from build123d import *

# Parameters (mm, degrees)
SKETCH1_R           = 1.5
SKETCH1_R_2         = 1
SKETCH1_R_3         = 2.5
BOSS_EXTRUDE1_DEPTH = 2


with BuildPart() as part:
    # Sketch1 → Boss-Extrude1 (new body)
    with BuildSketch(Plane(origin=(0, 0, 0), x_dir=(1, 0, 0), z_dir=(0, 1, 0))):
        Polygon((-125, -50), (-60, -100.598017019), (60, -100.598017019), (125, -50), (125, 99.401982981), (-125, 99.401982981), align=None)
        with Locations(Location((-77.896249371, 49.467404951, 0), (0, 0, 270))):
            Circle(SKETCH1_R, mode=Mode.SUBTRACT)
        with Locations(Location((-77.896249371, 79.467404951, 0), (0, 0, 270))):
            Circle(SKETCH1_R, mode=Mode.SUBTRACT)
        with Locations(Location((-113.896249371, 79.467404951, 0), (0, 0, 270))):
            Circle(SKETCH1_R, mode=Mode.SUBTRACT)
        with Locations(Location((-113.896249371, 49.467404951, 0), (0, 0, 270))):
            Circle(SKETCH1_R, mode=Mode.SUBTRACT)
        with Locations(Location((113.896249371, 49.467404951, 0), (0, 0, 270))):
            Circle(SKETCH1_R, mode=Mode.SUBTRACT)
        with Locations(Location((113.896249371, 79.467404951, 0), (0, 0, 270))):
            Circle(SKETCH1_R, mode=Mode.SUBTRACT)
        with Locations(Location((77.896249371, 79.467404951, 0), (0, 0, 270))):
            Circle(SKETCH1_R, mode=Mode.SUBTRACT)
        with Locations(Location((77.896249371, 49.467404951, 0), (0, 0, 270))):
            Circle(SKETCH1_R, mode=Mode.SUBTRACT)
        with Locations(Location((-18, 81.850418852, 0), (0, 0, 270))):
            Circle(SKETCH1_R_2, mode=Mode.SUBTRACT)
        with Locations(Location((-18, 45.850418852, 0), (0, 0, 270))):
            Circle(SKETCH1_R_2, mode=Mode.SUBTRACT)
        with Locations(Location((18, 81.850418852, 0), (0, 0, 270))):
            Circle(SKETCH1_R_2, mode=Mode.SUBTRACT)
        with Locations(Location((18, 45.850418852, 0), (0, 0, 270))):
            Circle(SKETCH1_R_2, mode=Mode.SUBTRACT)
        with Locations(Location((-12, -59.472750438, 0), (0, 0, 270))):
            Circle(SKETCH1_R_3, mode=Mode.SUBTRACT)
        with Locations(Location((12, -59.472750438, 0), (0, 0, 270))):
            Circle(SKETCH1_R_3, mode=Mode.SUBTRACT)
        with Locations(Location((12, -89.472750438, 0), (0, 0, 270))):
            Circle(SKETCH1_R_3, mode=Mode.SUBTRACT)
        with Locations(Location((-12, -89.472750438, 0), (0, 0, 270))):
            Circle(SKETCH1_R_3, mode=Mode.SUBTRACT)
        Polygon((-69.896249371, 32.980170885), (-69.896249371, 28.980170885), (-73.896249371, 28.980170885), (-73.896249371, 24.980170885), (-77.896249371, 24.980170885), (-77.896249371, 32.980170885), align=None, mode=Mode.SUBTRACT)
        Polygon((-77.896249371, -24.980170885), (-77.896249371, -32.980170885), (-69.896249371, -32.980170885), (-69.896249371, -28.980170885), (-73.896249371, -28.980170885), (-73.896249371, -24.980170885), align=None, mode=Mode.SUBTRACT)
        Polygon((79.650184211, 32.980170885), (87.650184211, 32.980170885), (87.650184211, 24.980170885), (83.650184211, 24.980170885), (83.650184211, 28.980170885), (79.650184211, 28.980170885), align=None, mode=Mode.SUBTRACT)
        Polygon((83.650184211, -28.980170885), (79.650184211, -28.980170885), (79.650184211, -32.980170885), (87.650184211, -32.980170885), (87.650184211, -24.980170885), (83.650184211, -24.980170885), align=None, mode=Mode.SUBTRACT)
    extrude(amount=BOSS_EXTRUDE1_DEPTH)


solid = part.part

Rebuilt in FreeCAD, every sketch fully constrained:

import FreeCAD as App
import Part
import Sketcher
from FreeCAD import Vector
Q = App.Units.Quantity

doc = App.newDocument("Part")
params = doc.addObject("Spreadsheet::Sheet", "Params")
for row, (alias, value) in enumerate([
    ("sketch1_diameter", "5 mm"),
    ("sketch1_diameter2", "3 mm"),
    ("sketch1_diameter3", "2 mm"),
    ("sketch1_width", "120 mm"),
    ("sketch1_width2", "250 mm"),
    ("pad1_length", "2 mm"),
], start=1):
    params.set(f"A{row}", alias)
    params.set(f"B{row}", "=" + value)
    params.setAlias(f"B{row}", alias)

body = doc.addObject("PartDesign::Body", "Body")

# Sketch on XZ plane
sketch1 = doc.addObject("Sketcher::SketchObject", "Sketch")
body.addObject(sketch1)
sketch1.AttachmentSupport = (doc.XZ_Plane, [""])
sketch1.MapMode = "FlatFace"
sketch1.addGeometry([
    Part.LineSegment(Vector(-125, 50, 0), Vector(-60, 100.598017, 0)),  # 0
    Part.LineSegment(Vector(-60, 100.598017, 0), Vector(60, 100.598017, 0)),  # 1
    Part.LineSegment(Vector(60, 100.598017, 0), Vector(125, 50, 0)),  # 2
    Part.LineSegment(Vector(125, 50, 0), Vector(125, -99.401983, 0)),  # 3
    Part.LineSegment(Vector(125, -99.401983, 0), Vector(-125, -99.401983, 0)),  # 4
    Part.LineSegment(Vector(-125, -99.401983, 0), Vector(-125, 50, 0)),  # 5
    Part.Circle(Vector(-12, 89.47275, 0), Vector(0, 0, 1), 2.5),  # 6
    Part.Circle(Vector(-12, 59.47275, 0), Vector(0, 0, 1), 2.5),  # 7
    Part.LineSegment(Vector(-77.896249, 32.980171, 0), Vector(-77.896249, 24.980171, 0)),  # 8
    Part.LineSegment(Vector(-77.896249, 24.980171, 0), Vector(-73.896249, 24.980171, 0)),  # 9
    Part.LineSegment(Vector(-73.896249, 24.980171, 0), Vector(-73.896249, 28.980171, 0)),  # 10
    Part.LineSegment(Vector(-73.896249, 28.980171, 0), Vector(-69.896249, 28.980171, 0)),  # 11
    Part.LineSegment(Vector(-69.896249, 28.980171, 0), Vector(-69.896249, 32.980171, 0)),  # 12
    Part.LineSegment(Vector(-69.896249, 32.980171, 0), Vector(-77.896249, 32.980171, 0)),  # 13
    Part.Circle(Vector(12, 89.47275, 0), Vector(0, 0, 1), 2.5),  # 14
    Part.Circle(Vector(12, 59.47275, 0), Vector(0, 0, 1), 2.5),  # 15
    Part.LineSegment(Vector(79.650184, 28.980171, 0), Vector(83.650184, 28.980171, 0)),  # 16
    Part.LineSegment(Vector(83.650184, 28.980171, 0), Vector(83.650184, 24.980171, 0)),  # 17
    Part.LineSegment(Vector(83.650184, 24.980171, 0), Vector(87.650184, 24.980171, 0)),  # 18
    Part.LineSegment(Vector(87.650184, 24.980171, 0), Vector(87.650184, 32.980171, 0)),  # 19
    Part.LineSegment(Vector(87.650184, 32.980171, 0), Vector(79.650184, 32.980171, 0)),  # 20
    Part.LineSegment(Vector(79.650184, 32.980171, 0), Vector(79.650184, 28.980171, 0)),  # 21
    Part.LineSegment(Vector(-77.896249, -32.980171, 0), Vector(-69.896249, -32.980171, 0)),  # 22
    Part.LineSegment(Vector(-69.896249, -32.980171, 0), Vector(-69.896249, -28.980171, 0)),  # 23
    Part.LineSegment(Vector(-69.896249, -28.980171, 0), Vector(-73.896249, -28.980171, 0)),  # 24
    Part.LineSegment(Vector(-73.896249, -28.980171, 0), Vector(-73.896249, -24.980171, 0)),  # 25
    Part.LineSegment(Vector(-73.896249, -24.980171, 0), Vector(-77.896249, -24.980171, 0)),  # 26
    Part.LineSegment(Vector(-77.896249, -24.980171, 0), Vector(-77.896249, -32.980171, 0)),  # 27
    Part.Circle(Vector(-113.896249, -49.467405, 0), Vector(0, 0, 1), 1.5),  # 28
    Part.Circle(Vector(-77.896249, -49.467405, 0), Vector(0, 0, 1), 1.5),  # 29
    Part.Circle(Vector(-113.896249, -79.467405, 0), Vector(0, 0, 1), 1.5),  # 30
    Part.Circle(Vector(-77.896249, -79.467405, 0), Vector(0, 0, 1), 1.5),  # 31
    Part.Circle(Vector(-18, -45.850419, 0), Vector(0, 0, 1), 1),  # 32
    Part.Circle(Vector(-18, -81.850419, 0), Vector(0, 0, 1), 1),  # 33
    Part.LineSegment(Vector(79.650184, -28.980171, 0), Vector(79.650184, -32.980171, 0)),  # 34
    Part.LineSegment(Vector(79.650184, -32.980171, 0), Vector(87.650184, -32.980171, 0)),  # 35
    Part.LineSegment(Vector(87.650184, -32.980171, 0), Vector(87.650184, -24.980171, 0)),  # 36
    Part.LineSegment(Vector(87.650184, -24.980171, 0), Vector(83.650184, -24.980171, 0)),  # 37
    Part.LineSegment(Vector(83.650184, -24.980171, 0), Vector(83.650184, -28.980171, 0)),  # 38
    Part.LineSegment(Vector(83.650184, -28.980171, 0), Vector(79.650184, -28.980171, 0)),  # 39
    Part.Circle(Vector(18, -45.850419, 0), Vector(0, 0, 1), 1),  # 40
    Part.Circle(Vector(18, -81.850419, 0), Vector(0, 0, 1), 1),  # 41
    Part.Circle(Vector(77.896249, -49.467405, 0), Vector(0, 0, 1), 1.5),  # 42
    Part.Circle(Vector(113.896249, -49.467405, 0), Vector(0, 0, 1), 1.5),  # 43
    Part.Circle(Vector(77.896249, -79.467405, 0), Vector(0, 0, 1), 1.5),  # 44
    Part.Circle(Vector(113.896249, -79.467405, 0), Vector(0, 0, 1), 1.5),  # 45
], False)
sketch1.addConstraint([
    Sketcher.Constraint("Coincident", 0, 2, 1, 1),
    Sketcher.Constraint("Coincident", 1, 2, 2, 1),
    Sketcher.Constraint("Coincident", 2, 2, 3, 1),
    Sketcher.Constraint("Coincident", 3, 2, 4, 1),
    Sketcher.Constraint("Coincident", 4, 2, 5, 1),
    Sketcher.Constraint("Coincident", 5, 2, 0, 1),
    Sketcher.Constraint("Coincident", 8, 2, 9, 1),
    Sketcher.Constraint("Coincident", 9, 2, 10, 1),
    Sketcher.Constraint("Coincident", 10, 2, 11, 1),
    Sketcher.Constraint("Coincident", 11, 2, 12, 1),
    Sketcher.Constraint("Coincident", 12, 2, 13, 1),
    Sketcher.Constraint("Coincident", 13, 2, 8, 1),
    Sketcher.Constraint("Coincident", 16, 2, 17, 1),
    Sketcher.Constraint("Coincident", 17, 2, 18, 1),
    Sketcher.Constraint("Coincident", 18, 2, 19, 1),
    Sketcher.Constraint("Coincident", 19, 2, 20, 1),
    Sketcher.Constraint("Coincident", 20, 2, 21, 1),
    Sketcher.Constraint("Coincident", 21, 2, 16, 1),
    Sketcher.Constraint("Coincident", 22, 2, 23, 1),
    Sketcher.Constraint("Coincident", 23, 2, 24, 1),
    Sketcher.Constraint("Coincident", 24, 2, 25, 1),
    Sketcher.Constraint("Coincident", 25, 2, 26, 1),
    Sketcher.Constraint("Coincident", 26, 2, 27, 1),
    Sketcher.Constraint("Coincident", 27, 2, 22, 1),
    Sketcher.Constraint("Coincident", 34, 2, 35, 1),
    Sketcher.Constraint("Coincident", 35, 2, 36, 1),
    Sketcher.Constraint("Coincident", 36, 2, 37, 1),
    Sketcher.Constraint("Coincident", 37, 2, 38, 1),
    Sketcher.Constraint("Coincident", 38, 2, 39, 1),
    Sketcher.Constraint("Coincident", 39, 2, 34, 1),
    Sketcher.Constraint("Horizontal", 1),
    Sketcher.Constraint("Vertical", 3),
    Sketcher.Constraint("Horizontal", 4),
    Sketcher.Constraint("Vertical", 5),
    Sketcher.Constraint("Vertical", 8),
    Sketcher.Constraint("Horizontal", 9),
    Sketcher.Constraint("Vertical", 10),
    Sketcher.Constraint("Horizontal", 11),
    Sketcher.Constraint("Vertical", 12),
    Sketcher.Constraint("Horizontal", 13),
    Sketcher.Constraint("Horizontal", 16),
    Sketcher.Constraint("Vertical", 17),
    Sketcher.Constraint("Horizontal", 18),
    Sketcher.Constraint("Vertical", 19),
    Sketcher.Constraint("Horizontal", 20),
    Sketcher.Constraint("Vertical", 21),
    Sketcher.Constraint("Horizontal", 22),
    Sketcher.Constraint("Vertical", 23),
    Sketcher.Constraint("Horizontal", 24),
    Sketcher.Constraint("Vertical", 25),
    Sketcher.Constraint("Horizontal", 26),
    Sketcher.Constraint("Vertical", 27),
    Sketcher.Constraint("Vertical", 34),
    Sketcher.Constraint("Horizontal", 35),
    Sketcher.Constraint("Vertical", 36),
    Sketcher.Constraint("Horizontal", 37),
    Sketcher.Constraint("Vertical", 38),
    Sketcher.Constraint("Horizontal", 39),
    Sketcher.Constraint("Equal", 6, 7),
    Sketcher.Constraint("Equal", 7, 14),
    Sketcher.Constraint("Equal", 14, 15),
    Sketcher.Constraint("Equal", 28, 29),
    Sketcher.Constraint("Equal", 29, 30),
    Sketcher.Constraint("Equal", 30, 31),
    Sketcher.Constraint("Equal", 32, 33),
    Sketcher.Constraint("Equal", 33, 40),
    Sketcher.Constraint("Equal", 40, 41),
    Sketcher.Constraint("Equal", 31, 42),
    Sketcher.Constraint("Equal", 42, 43),
    Sketcher.Constraint("Equal", 43, 44),
    Sketcher.Constraint("Equal", 44, 45),
    Sketcher.Constraint("Symmetric", 6, 3, 14, 3, -2),
    Sketcher.Constraint("Symmetric", 7, 3, 15, 3, -2),
    Sketcher.Constraint("Symmetric", 32, 3, 40, 3, -2),
    Sketcher.Constraint("Symmetric", 33, 3, 41, 3, -2),
    Sketcher.Constraint("Symmetric", 29, 3, 42, 3, -2),
    Sketcher.Constraint("Symmetric", 28, 3, 43, 3, -2),
    Sketcher.Constraint("Symmetric", 31, 3, 44, 3, -2),
    Sketcher.Constraint("Symmetric", 30, 3, 45, 3, -2),
    Sketcher.Constraint("Symmetric", 2, 2, 5, 2, -2),
    Sketcher.Constraint("Symmetric", 12, 2, 22, 2, -1),
    Sketcher.Constraint("Symmetric", 10, 2, 24, 2, -1),
    Sketcher.Constraint("Symmetric", 8, 2, 26, 2, -1),
    Sketcher.Constraint("Symmetric", 20, 2, 34, 2, -1),
    Sketcher.Constraint("Symmetric", 18, 2, 36, 2, -1),
    Sketcher.Constraint("Symmetric", 16, 2, 38, 2, -1),
    Sketcher.Constraint("Horizontal", 28, 3, 29, 3),
    Sketcher.Constraint("Horizontal", 30, 3, 31, 3),
    Sketcher.Constraint("Horizontal", 11, 2, 16, 2),
    Sketcher.Constraint("Horizontal", 9, 2, 17, 2),
    Sketcher.Constraint("Horizontal", 13, 2, 19, 2),
    Sketcher.Constraint("Vertical", 6, 3, 7, 3),
    Sketcher.Constraint("Vertical", 28, 3, 30, 3),
    Sketcher.Constraint("Vertical", 29, 3, 31, 3),
    Sketcher.Constraint("Vertical", 32, 3, 33, 3),
    Sketcher.Constraint("Vertical", 31, 3, 8, 2),
    Sketcher.Constraint("Equal", 9, 11),
    Sketcher.Constraint("Equal", 11, 16),
    Sketcher.Constraint("Equal", 16, 18),
    Sketcher.Constraint("Equal", 35, 8),
    Sketcher.Constraint("Equal", 39, 10),
    Sketcher.Constraint("Equal", 0, 2),
    Sketcher.Constraint("Diameter", 6, Q("5 mm")),
    Sketcher.Constraint("Diameter", 28, Q("3 mm")),
    Sketcher.Constraint("Diameter", 32, Q("2 mm")),
    Sketcher.Constraint("DistanceX", 1, 1, 1, 2, Q("120 mm")),
    Sketcher.Constraint("DistanceX", 4, 2, 4, 1, Q("250 mm")),
    Sketcher.Constraint("DistanceX", 9, 1, 9, 2, Q("4 mm")),
    Sketcher.Constraint("DistanceX", 6, 3, -1, 1, Q("12 mm")),
    Sketcher.Constraint("DistanceX", 32, 3, -1, 1, Q("18 mm")),
    Sketcher.Constraint("DistanceY", -1, 1, 2, 2, Q("50 mm")),
    Sketcher.Constraint("DistanceY", 7, 3, 6, 3, Q("30 mm")),
    Sketcher.Constraint("DistanceX", 28, 3, 29, 3, Q("36 mm")),
    Sketcher.Constraint("DistanceY", 30, 3, 28, 3, Q("30 mm")),
    Sketcher.Constraint("DistanceY", 33, 3, 32, 3, Q("36 mm")),
    Sketcher.Constraint("Distance", 0, Q("82.372079 mm")),
    Sketcher.Constraint("DistanceY", 3, 2, 3, 1, Q("149.401983 mm")),
    Sketcher.Constraint("DistanceY", -1, 1, 6, 3, Q("89.47275 mm")),
    Sketcher.Constraint("DistanceX", 28, 3, -1, 1, Q("113.896249 mm")),
    Sketcher.Constraint("DistanceY", 32, 3, -1, 1, Q("45.850419 mm")),
    Sketcher.Constraint("DistanceY", -1, 1, 8, 2, Q("24.980171 mm")),
    Sketcher.Constraint("DistanceY", 29, 3, 0, 2, Q("150.065422 mm")),
    Sketcher.Constraint("DistanceX", -1, 1, 16, 2, Q("83.650184 mm")),
])
sketch1.setExpression("Constraints[102]", "Params.sketch1_diameter")
sketch1.setExpression("Constraints[103]", "Params.sketch1_diameter2")
sketch1.setExpression("Constraints[104]", "Params.sketch1_diameter3")
sketch1.setExpression("Constraints[105]", "Params.sketch1_width")
sketch1.setExpression("Constraints[106]", "Params.sketch1_width2")
pad1 = doc.addObject("PartDesign::Pad", "Pad")
body.addObject(pad1)
pad1.Profile = sketch1
pad1.setExpression("Length", "Params.pad1_length")
pad1.Reversed = True

doc.recompute()
